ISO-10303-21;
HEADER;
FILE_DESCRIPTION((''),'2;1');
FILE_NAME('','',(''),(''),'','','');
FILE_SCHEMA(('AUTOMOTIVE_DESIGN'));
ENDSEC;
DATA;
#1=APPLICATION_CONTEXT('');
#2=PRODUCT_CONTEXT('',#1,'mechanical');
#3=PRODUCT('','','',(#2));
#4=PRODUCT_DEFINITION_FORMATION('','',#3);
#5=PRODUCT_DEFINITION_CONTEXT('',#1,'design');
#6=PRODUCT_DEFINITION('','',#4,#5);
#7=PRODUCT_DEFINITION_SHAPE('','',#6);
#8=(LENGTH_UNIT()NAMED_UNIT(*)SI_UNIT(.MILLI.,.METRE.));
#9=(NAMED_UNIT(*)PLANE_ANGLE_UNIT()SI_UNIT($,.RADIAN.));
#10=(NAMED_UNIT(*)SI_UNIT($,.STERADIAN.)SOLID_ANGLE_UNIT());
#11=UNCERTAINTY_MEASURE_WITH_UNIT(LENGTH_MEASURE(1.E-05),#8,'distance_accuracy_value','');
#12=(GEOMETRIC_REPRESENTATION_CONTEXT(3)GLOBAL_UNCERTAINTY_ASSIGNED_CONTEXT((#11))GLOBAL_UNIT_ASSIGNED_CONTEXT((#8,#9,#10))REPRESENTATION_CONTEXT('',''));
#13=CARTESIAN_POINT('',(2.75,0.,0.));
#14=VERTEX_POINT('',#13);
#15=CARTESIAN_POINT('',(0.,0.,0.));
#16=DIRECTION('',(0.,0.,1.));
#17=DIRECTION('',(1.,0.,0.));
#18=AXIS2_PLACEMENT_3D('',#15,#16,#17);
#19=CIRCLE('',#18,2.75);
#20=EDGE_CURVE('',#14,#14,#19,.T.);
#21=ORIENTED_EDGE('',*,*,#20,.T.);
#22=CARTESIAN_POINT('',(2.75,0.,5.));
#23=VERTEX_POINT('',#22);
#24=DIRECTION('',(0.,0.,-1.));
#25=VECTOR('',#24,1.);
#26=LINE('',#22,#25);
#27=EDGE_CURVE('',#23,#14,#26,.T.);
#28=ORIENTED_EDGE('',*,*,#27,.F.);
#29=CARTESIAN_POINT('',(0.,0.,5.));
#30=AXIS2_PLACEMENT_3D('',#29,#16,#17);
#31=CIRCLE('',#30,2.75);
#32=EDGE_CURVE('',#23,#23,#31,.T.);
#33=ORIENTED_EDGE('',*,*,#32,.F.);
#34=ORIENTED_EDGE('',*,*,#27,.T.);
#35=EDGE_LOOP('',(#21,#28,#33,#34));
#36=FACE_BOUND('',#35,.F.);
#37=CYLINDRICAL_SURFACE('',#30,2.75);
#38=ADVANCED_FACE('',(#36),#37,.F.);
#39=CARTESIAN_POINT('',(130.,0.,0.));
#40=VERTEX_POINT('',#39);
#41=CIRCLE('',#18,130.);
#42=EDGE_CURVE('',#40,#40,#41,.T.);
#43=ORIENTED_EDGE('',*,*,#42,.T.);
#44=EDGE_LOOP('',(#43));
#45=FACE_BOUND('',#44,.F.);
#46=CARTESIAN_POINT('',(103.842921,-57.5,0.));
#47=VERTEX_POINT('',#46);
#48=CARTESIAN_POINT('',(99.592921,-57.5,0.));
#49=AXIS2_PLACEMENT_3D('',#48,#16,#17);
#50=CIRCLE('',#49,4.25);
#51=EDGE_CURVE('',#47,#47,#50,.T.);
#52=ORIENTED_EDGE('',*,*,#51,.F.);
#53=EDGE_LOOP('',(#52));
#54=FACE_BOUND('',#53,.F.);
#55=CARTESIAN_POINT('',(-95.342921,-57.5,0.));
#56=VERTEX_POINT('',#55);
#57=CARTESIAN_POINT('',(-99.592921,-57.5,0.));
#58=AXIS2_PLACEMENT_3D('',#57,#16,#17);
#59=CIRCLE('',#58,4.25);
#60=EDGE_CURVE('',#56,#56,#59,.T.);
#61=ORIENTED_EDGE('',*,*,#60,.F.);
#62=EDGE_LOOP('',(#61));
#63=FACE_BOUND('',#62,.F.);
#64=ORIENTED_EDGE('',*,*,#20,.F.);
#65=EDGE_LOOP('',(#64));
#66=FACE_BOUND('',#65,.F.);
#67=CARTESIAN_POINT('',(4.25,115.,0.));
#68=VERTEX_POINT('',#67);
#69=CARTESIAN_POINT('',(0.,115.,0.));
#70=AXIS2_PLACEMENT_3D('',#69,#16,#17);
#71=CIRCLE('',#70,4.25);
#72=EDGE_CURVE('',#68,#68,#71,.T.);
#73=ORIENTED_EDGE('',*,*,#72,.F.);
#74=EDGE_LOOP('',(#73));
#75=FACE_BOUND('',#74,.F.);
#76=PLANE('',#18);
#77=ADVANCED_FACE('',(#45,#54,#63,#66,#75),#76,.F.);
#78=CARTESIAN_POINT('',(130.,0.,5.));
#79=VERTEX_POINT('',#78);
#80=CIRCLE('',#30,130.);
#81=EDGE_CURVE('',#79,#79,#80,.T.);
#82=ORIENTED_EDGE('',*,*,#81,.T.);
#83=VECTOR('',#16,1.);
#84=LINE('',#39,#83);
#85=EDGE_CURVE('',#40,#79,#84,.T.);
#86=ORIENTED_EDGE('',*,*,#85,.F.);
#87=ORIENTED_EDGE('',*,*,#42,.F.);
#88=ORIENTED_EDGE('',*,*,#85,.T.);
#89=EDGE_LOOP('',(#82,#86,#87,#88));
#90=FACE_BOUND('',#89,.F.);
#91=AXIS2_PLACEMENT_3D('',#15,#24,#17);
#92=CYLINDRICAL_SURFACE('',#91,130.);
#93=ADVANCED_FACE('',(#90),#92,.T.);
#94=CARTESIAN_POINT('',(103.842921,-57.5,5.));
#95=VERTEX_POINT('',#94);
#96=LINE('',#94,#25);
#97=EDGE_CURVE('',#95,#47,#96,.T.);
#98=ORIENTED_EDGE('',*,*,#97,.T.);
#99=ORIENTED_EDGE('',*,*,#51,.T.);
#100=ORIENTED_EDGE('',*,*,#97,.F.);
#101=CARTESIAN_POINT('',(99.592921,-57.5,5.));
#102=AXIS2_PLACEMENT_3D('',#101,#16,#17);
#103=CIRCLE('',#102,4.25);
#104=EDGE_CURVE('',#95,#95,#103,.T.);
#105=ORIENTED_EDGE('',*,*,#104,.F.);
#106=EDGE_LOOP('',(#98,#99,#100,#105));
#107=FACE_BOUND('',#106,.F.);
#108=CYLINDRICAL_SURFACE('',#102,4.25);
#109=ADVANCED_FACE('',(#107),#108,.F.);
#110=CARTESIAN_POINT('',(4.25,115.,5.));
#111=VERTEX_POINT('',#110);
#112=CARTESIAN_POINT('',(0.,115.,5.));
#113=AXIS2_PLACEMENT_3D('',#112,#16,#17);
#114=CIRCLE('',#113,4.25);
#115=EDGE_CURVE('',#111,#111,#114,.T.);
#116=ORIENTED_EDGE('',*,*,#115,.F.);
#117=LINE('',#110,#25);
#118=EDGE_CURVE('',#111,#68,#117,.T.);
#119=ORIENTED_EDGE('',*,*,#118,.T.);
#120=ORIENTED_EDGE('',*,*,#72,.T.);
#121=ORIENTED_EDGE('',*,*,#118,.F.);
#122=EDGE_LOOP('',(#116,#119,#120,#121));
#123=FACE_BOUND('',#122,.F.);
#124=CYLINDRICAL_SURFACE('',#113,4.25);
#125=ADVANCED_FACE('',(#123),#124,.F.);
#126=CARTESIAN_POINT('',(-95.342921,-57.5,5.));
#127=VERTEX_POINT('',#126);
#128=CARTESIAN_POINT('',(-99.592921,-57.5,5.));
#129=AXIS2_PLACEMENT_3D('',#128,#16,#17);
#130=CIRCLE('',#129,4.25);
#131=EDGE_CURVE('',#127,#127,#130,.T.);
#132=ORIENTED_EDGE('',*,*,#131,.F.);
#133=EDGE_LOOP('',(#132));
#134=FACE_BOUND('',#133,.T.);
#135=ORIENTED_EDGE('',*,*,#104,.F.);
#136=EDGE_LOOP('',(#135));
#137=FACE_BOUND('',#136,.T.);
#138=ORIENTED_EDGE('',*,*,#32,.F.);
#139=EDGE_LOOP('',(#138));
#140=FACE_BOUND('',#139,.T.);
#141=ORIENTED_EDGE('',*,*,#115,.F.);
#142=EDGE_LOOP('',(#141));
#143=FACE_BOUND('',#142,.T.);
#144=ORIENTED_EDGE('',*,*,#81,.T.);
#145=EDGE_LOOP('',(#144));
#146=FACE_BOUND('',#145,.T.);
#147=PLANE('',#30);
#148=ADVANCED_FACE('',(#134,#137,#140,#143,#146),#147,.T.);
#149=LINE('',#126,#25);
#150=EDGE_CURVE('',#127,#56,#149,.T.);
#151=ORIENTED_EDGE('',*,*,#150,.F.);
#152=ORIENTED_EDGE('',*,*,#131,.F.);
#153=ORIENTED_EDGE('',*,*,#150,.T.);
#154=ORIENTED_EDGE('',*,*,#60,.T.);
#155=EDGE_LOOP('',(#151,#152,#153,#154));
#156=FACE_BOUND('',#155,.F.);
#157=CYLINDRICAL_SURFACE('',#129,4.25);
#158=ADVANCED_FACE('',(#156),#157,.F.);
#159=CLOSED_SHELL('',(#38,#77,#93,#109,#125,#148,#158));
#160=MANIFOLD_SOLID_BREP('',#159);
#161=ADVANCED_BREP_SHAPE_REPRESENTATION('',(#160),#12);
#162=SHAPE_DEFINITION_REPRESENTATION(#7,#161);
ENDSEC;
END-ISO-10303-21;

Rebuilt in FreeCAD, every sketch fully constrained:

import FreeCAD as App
import Part
import Sketcher
from FreeCAD import Vector
Q = App.Units.Quantity

doc = App.newDocument("Part")
params = doc.addObject("Spreadsheet::Sheet", "Params")
for row, (alias, value) in enumerate([
    ("sketch1_diameter", "260 mm"),
    ("pad1_length", "5 mm"),
    ("sketch2_diameter", "5.5 mm"),
    ("sketch2_diameter2", "8.5 mm"),
], start=1):
    params.set(f"A{row}", alias)
    params.set(f"B{row}", "=" + value)
    params.setAlias(f"B{row}", alias)

body = doc.addObject("PartDesign::Body", "Body")

sketch1 = body.newObject("Sketcher::SketchObject", "Sketch")
sketch1.AttachmentSupport = (doc.getObject("XY_Plane"), [""])
sketch1.MapMode = "FlatFace"
sketch1.addGeometry(Part.Circle(Vector(0, 0, 0), Vector(0, 0, 1), 130), False)
sketch1.addConstraint(Sketcher.Constraint("Coincident", 0, 3, -1, 1))
sketch1.addConstraint(Sketcher.Constraint("Diameter", 0, Q("260 mm")))
sketch1.setExpression("Constraints[1]", "Params.sketch1_diameter")
pad1 = body.newObject("PartDesign::Pad", "Pad")
pad1.Profile = sketch1
pad1.setExpression("Length", "Params.pad1_length")

sketch2 = body.newObject("Sketcher::SketchObject", "Sketch001")
sketch2.AttachmentSupport = (doc.getObject("XY_Plane"), [""])
sketch2.MapMode = "FlatFace"
sketch2.AttachmentOffset = App.Placement(Vector(0, 0, 5), App.Rotation())
sketch2.addGeometry(Part.Circle(Vector(0, 0, 0), Vector(0, 0, 1), 2.8), False)
sketch2.addGeometry(Part.Circle(Vector(0, 115, 0), Vector(0, 0, 1), 4.2), False)
sketch2.addGeometry(Part.Circle(Vector(-99.6, -57.5, 0), Vector(0, 0, 1), 4.2), False)
sketch2.addGeometry(Part.Circle(Vector(99.6, -57.5, 0), Vector(0, 0, 1), 4.2), False)
sketch2.addConstraint(Sketcher.Constraint("Coincident", 0, 3, -1, 1))
sketch2.addConstraint(Sketcher.Constraint("Equal", 1, 2))
sketch2.addConstraint(Sketcher.Constraint("Equal", 2, 3))
sketch2.addConstraint(Sketcher.Constraint("Symmetric", 2, 3, 3, 3, -2))
sketch2.addConstraint(Sketcher.Constraint("PointOnObject", 1, 3, -2))
sketch2.addConstraint(Sketcher.Constraint("Diameter", 0, Q("5.5 mm")))
sketch2.addConstraint(Sketcher.Constraint("Diameter", 1, Q("8.5 mm")))
sketch2.addConstraint(Sketcher.Constraint("DistanceY", -1, 1, 1, 3, Q("115 mm")))
sketch2.addConstraint(Sketcher.Constraint("DistanceY", 2, 3, -1, 1, Q("57.5 mm")))
sketch2.addConstraint(Sketcher.Constraint("DistanceX", 2, 3, -1, 1, Q("99.592921 mm")))
sketch2.setExpression("Constraints[5]", "Params.sketch2_diameter")
sketch2.setExpression("Constraints[6]", "Params.sketch2_diameter2")
pocket1 = body.newObject("PartDesign::Pocket", "Pocket")
pocket1.Profile = sketch2
pocket1.Type = "ThroughAll"

doc.recompute()
